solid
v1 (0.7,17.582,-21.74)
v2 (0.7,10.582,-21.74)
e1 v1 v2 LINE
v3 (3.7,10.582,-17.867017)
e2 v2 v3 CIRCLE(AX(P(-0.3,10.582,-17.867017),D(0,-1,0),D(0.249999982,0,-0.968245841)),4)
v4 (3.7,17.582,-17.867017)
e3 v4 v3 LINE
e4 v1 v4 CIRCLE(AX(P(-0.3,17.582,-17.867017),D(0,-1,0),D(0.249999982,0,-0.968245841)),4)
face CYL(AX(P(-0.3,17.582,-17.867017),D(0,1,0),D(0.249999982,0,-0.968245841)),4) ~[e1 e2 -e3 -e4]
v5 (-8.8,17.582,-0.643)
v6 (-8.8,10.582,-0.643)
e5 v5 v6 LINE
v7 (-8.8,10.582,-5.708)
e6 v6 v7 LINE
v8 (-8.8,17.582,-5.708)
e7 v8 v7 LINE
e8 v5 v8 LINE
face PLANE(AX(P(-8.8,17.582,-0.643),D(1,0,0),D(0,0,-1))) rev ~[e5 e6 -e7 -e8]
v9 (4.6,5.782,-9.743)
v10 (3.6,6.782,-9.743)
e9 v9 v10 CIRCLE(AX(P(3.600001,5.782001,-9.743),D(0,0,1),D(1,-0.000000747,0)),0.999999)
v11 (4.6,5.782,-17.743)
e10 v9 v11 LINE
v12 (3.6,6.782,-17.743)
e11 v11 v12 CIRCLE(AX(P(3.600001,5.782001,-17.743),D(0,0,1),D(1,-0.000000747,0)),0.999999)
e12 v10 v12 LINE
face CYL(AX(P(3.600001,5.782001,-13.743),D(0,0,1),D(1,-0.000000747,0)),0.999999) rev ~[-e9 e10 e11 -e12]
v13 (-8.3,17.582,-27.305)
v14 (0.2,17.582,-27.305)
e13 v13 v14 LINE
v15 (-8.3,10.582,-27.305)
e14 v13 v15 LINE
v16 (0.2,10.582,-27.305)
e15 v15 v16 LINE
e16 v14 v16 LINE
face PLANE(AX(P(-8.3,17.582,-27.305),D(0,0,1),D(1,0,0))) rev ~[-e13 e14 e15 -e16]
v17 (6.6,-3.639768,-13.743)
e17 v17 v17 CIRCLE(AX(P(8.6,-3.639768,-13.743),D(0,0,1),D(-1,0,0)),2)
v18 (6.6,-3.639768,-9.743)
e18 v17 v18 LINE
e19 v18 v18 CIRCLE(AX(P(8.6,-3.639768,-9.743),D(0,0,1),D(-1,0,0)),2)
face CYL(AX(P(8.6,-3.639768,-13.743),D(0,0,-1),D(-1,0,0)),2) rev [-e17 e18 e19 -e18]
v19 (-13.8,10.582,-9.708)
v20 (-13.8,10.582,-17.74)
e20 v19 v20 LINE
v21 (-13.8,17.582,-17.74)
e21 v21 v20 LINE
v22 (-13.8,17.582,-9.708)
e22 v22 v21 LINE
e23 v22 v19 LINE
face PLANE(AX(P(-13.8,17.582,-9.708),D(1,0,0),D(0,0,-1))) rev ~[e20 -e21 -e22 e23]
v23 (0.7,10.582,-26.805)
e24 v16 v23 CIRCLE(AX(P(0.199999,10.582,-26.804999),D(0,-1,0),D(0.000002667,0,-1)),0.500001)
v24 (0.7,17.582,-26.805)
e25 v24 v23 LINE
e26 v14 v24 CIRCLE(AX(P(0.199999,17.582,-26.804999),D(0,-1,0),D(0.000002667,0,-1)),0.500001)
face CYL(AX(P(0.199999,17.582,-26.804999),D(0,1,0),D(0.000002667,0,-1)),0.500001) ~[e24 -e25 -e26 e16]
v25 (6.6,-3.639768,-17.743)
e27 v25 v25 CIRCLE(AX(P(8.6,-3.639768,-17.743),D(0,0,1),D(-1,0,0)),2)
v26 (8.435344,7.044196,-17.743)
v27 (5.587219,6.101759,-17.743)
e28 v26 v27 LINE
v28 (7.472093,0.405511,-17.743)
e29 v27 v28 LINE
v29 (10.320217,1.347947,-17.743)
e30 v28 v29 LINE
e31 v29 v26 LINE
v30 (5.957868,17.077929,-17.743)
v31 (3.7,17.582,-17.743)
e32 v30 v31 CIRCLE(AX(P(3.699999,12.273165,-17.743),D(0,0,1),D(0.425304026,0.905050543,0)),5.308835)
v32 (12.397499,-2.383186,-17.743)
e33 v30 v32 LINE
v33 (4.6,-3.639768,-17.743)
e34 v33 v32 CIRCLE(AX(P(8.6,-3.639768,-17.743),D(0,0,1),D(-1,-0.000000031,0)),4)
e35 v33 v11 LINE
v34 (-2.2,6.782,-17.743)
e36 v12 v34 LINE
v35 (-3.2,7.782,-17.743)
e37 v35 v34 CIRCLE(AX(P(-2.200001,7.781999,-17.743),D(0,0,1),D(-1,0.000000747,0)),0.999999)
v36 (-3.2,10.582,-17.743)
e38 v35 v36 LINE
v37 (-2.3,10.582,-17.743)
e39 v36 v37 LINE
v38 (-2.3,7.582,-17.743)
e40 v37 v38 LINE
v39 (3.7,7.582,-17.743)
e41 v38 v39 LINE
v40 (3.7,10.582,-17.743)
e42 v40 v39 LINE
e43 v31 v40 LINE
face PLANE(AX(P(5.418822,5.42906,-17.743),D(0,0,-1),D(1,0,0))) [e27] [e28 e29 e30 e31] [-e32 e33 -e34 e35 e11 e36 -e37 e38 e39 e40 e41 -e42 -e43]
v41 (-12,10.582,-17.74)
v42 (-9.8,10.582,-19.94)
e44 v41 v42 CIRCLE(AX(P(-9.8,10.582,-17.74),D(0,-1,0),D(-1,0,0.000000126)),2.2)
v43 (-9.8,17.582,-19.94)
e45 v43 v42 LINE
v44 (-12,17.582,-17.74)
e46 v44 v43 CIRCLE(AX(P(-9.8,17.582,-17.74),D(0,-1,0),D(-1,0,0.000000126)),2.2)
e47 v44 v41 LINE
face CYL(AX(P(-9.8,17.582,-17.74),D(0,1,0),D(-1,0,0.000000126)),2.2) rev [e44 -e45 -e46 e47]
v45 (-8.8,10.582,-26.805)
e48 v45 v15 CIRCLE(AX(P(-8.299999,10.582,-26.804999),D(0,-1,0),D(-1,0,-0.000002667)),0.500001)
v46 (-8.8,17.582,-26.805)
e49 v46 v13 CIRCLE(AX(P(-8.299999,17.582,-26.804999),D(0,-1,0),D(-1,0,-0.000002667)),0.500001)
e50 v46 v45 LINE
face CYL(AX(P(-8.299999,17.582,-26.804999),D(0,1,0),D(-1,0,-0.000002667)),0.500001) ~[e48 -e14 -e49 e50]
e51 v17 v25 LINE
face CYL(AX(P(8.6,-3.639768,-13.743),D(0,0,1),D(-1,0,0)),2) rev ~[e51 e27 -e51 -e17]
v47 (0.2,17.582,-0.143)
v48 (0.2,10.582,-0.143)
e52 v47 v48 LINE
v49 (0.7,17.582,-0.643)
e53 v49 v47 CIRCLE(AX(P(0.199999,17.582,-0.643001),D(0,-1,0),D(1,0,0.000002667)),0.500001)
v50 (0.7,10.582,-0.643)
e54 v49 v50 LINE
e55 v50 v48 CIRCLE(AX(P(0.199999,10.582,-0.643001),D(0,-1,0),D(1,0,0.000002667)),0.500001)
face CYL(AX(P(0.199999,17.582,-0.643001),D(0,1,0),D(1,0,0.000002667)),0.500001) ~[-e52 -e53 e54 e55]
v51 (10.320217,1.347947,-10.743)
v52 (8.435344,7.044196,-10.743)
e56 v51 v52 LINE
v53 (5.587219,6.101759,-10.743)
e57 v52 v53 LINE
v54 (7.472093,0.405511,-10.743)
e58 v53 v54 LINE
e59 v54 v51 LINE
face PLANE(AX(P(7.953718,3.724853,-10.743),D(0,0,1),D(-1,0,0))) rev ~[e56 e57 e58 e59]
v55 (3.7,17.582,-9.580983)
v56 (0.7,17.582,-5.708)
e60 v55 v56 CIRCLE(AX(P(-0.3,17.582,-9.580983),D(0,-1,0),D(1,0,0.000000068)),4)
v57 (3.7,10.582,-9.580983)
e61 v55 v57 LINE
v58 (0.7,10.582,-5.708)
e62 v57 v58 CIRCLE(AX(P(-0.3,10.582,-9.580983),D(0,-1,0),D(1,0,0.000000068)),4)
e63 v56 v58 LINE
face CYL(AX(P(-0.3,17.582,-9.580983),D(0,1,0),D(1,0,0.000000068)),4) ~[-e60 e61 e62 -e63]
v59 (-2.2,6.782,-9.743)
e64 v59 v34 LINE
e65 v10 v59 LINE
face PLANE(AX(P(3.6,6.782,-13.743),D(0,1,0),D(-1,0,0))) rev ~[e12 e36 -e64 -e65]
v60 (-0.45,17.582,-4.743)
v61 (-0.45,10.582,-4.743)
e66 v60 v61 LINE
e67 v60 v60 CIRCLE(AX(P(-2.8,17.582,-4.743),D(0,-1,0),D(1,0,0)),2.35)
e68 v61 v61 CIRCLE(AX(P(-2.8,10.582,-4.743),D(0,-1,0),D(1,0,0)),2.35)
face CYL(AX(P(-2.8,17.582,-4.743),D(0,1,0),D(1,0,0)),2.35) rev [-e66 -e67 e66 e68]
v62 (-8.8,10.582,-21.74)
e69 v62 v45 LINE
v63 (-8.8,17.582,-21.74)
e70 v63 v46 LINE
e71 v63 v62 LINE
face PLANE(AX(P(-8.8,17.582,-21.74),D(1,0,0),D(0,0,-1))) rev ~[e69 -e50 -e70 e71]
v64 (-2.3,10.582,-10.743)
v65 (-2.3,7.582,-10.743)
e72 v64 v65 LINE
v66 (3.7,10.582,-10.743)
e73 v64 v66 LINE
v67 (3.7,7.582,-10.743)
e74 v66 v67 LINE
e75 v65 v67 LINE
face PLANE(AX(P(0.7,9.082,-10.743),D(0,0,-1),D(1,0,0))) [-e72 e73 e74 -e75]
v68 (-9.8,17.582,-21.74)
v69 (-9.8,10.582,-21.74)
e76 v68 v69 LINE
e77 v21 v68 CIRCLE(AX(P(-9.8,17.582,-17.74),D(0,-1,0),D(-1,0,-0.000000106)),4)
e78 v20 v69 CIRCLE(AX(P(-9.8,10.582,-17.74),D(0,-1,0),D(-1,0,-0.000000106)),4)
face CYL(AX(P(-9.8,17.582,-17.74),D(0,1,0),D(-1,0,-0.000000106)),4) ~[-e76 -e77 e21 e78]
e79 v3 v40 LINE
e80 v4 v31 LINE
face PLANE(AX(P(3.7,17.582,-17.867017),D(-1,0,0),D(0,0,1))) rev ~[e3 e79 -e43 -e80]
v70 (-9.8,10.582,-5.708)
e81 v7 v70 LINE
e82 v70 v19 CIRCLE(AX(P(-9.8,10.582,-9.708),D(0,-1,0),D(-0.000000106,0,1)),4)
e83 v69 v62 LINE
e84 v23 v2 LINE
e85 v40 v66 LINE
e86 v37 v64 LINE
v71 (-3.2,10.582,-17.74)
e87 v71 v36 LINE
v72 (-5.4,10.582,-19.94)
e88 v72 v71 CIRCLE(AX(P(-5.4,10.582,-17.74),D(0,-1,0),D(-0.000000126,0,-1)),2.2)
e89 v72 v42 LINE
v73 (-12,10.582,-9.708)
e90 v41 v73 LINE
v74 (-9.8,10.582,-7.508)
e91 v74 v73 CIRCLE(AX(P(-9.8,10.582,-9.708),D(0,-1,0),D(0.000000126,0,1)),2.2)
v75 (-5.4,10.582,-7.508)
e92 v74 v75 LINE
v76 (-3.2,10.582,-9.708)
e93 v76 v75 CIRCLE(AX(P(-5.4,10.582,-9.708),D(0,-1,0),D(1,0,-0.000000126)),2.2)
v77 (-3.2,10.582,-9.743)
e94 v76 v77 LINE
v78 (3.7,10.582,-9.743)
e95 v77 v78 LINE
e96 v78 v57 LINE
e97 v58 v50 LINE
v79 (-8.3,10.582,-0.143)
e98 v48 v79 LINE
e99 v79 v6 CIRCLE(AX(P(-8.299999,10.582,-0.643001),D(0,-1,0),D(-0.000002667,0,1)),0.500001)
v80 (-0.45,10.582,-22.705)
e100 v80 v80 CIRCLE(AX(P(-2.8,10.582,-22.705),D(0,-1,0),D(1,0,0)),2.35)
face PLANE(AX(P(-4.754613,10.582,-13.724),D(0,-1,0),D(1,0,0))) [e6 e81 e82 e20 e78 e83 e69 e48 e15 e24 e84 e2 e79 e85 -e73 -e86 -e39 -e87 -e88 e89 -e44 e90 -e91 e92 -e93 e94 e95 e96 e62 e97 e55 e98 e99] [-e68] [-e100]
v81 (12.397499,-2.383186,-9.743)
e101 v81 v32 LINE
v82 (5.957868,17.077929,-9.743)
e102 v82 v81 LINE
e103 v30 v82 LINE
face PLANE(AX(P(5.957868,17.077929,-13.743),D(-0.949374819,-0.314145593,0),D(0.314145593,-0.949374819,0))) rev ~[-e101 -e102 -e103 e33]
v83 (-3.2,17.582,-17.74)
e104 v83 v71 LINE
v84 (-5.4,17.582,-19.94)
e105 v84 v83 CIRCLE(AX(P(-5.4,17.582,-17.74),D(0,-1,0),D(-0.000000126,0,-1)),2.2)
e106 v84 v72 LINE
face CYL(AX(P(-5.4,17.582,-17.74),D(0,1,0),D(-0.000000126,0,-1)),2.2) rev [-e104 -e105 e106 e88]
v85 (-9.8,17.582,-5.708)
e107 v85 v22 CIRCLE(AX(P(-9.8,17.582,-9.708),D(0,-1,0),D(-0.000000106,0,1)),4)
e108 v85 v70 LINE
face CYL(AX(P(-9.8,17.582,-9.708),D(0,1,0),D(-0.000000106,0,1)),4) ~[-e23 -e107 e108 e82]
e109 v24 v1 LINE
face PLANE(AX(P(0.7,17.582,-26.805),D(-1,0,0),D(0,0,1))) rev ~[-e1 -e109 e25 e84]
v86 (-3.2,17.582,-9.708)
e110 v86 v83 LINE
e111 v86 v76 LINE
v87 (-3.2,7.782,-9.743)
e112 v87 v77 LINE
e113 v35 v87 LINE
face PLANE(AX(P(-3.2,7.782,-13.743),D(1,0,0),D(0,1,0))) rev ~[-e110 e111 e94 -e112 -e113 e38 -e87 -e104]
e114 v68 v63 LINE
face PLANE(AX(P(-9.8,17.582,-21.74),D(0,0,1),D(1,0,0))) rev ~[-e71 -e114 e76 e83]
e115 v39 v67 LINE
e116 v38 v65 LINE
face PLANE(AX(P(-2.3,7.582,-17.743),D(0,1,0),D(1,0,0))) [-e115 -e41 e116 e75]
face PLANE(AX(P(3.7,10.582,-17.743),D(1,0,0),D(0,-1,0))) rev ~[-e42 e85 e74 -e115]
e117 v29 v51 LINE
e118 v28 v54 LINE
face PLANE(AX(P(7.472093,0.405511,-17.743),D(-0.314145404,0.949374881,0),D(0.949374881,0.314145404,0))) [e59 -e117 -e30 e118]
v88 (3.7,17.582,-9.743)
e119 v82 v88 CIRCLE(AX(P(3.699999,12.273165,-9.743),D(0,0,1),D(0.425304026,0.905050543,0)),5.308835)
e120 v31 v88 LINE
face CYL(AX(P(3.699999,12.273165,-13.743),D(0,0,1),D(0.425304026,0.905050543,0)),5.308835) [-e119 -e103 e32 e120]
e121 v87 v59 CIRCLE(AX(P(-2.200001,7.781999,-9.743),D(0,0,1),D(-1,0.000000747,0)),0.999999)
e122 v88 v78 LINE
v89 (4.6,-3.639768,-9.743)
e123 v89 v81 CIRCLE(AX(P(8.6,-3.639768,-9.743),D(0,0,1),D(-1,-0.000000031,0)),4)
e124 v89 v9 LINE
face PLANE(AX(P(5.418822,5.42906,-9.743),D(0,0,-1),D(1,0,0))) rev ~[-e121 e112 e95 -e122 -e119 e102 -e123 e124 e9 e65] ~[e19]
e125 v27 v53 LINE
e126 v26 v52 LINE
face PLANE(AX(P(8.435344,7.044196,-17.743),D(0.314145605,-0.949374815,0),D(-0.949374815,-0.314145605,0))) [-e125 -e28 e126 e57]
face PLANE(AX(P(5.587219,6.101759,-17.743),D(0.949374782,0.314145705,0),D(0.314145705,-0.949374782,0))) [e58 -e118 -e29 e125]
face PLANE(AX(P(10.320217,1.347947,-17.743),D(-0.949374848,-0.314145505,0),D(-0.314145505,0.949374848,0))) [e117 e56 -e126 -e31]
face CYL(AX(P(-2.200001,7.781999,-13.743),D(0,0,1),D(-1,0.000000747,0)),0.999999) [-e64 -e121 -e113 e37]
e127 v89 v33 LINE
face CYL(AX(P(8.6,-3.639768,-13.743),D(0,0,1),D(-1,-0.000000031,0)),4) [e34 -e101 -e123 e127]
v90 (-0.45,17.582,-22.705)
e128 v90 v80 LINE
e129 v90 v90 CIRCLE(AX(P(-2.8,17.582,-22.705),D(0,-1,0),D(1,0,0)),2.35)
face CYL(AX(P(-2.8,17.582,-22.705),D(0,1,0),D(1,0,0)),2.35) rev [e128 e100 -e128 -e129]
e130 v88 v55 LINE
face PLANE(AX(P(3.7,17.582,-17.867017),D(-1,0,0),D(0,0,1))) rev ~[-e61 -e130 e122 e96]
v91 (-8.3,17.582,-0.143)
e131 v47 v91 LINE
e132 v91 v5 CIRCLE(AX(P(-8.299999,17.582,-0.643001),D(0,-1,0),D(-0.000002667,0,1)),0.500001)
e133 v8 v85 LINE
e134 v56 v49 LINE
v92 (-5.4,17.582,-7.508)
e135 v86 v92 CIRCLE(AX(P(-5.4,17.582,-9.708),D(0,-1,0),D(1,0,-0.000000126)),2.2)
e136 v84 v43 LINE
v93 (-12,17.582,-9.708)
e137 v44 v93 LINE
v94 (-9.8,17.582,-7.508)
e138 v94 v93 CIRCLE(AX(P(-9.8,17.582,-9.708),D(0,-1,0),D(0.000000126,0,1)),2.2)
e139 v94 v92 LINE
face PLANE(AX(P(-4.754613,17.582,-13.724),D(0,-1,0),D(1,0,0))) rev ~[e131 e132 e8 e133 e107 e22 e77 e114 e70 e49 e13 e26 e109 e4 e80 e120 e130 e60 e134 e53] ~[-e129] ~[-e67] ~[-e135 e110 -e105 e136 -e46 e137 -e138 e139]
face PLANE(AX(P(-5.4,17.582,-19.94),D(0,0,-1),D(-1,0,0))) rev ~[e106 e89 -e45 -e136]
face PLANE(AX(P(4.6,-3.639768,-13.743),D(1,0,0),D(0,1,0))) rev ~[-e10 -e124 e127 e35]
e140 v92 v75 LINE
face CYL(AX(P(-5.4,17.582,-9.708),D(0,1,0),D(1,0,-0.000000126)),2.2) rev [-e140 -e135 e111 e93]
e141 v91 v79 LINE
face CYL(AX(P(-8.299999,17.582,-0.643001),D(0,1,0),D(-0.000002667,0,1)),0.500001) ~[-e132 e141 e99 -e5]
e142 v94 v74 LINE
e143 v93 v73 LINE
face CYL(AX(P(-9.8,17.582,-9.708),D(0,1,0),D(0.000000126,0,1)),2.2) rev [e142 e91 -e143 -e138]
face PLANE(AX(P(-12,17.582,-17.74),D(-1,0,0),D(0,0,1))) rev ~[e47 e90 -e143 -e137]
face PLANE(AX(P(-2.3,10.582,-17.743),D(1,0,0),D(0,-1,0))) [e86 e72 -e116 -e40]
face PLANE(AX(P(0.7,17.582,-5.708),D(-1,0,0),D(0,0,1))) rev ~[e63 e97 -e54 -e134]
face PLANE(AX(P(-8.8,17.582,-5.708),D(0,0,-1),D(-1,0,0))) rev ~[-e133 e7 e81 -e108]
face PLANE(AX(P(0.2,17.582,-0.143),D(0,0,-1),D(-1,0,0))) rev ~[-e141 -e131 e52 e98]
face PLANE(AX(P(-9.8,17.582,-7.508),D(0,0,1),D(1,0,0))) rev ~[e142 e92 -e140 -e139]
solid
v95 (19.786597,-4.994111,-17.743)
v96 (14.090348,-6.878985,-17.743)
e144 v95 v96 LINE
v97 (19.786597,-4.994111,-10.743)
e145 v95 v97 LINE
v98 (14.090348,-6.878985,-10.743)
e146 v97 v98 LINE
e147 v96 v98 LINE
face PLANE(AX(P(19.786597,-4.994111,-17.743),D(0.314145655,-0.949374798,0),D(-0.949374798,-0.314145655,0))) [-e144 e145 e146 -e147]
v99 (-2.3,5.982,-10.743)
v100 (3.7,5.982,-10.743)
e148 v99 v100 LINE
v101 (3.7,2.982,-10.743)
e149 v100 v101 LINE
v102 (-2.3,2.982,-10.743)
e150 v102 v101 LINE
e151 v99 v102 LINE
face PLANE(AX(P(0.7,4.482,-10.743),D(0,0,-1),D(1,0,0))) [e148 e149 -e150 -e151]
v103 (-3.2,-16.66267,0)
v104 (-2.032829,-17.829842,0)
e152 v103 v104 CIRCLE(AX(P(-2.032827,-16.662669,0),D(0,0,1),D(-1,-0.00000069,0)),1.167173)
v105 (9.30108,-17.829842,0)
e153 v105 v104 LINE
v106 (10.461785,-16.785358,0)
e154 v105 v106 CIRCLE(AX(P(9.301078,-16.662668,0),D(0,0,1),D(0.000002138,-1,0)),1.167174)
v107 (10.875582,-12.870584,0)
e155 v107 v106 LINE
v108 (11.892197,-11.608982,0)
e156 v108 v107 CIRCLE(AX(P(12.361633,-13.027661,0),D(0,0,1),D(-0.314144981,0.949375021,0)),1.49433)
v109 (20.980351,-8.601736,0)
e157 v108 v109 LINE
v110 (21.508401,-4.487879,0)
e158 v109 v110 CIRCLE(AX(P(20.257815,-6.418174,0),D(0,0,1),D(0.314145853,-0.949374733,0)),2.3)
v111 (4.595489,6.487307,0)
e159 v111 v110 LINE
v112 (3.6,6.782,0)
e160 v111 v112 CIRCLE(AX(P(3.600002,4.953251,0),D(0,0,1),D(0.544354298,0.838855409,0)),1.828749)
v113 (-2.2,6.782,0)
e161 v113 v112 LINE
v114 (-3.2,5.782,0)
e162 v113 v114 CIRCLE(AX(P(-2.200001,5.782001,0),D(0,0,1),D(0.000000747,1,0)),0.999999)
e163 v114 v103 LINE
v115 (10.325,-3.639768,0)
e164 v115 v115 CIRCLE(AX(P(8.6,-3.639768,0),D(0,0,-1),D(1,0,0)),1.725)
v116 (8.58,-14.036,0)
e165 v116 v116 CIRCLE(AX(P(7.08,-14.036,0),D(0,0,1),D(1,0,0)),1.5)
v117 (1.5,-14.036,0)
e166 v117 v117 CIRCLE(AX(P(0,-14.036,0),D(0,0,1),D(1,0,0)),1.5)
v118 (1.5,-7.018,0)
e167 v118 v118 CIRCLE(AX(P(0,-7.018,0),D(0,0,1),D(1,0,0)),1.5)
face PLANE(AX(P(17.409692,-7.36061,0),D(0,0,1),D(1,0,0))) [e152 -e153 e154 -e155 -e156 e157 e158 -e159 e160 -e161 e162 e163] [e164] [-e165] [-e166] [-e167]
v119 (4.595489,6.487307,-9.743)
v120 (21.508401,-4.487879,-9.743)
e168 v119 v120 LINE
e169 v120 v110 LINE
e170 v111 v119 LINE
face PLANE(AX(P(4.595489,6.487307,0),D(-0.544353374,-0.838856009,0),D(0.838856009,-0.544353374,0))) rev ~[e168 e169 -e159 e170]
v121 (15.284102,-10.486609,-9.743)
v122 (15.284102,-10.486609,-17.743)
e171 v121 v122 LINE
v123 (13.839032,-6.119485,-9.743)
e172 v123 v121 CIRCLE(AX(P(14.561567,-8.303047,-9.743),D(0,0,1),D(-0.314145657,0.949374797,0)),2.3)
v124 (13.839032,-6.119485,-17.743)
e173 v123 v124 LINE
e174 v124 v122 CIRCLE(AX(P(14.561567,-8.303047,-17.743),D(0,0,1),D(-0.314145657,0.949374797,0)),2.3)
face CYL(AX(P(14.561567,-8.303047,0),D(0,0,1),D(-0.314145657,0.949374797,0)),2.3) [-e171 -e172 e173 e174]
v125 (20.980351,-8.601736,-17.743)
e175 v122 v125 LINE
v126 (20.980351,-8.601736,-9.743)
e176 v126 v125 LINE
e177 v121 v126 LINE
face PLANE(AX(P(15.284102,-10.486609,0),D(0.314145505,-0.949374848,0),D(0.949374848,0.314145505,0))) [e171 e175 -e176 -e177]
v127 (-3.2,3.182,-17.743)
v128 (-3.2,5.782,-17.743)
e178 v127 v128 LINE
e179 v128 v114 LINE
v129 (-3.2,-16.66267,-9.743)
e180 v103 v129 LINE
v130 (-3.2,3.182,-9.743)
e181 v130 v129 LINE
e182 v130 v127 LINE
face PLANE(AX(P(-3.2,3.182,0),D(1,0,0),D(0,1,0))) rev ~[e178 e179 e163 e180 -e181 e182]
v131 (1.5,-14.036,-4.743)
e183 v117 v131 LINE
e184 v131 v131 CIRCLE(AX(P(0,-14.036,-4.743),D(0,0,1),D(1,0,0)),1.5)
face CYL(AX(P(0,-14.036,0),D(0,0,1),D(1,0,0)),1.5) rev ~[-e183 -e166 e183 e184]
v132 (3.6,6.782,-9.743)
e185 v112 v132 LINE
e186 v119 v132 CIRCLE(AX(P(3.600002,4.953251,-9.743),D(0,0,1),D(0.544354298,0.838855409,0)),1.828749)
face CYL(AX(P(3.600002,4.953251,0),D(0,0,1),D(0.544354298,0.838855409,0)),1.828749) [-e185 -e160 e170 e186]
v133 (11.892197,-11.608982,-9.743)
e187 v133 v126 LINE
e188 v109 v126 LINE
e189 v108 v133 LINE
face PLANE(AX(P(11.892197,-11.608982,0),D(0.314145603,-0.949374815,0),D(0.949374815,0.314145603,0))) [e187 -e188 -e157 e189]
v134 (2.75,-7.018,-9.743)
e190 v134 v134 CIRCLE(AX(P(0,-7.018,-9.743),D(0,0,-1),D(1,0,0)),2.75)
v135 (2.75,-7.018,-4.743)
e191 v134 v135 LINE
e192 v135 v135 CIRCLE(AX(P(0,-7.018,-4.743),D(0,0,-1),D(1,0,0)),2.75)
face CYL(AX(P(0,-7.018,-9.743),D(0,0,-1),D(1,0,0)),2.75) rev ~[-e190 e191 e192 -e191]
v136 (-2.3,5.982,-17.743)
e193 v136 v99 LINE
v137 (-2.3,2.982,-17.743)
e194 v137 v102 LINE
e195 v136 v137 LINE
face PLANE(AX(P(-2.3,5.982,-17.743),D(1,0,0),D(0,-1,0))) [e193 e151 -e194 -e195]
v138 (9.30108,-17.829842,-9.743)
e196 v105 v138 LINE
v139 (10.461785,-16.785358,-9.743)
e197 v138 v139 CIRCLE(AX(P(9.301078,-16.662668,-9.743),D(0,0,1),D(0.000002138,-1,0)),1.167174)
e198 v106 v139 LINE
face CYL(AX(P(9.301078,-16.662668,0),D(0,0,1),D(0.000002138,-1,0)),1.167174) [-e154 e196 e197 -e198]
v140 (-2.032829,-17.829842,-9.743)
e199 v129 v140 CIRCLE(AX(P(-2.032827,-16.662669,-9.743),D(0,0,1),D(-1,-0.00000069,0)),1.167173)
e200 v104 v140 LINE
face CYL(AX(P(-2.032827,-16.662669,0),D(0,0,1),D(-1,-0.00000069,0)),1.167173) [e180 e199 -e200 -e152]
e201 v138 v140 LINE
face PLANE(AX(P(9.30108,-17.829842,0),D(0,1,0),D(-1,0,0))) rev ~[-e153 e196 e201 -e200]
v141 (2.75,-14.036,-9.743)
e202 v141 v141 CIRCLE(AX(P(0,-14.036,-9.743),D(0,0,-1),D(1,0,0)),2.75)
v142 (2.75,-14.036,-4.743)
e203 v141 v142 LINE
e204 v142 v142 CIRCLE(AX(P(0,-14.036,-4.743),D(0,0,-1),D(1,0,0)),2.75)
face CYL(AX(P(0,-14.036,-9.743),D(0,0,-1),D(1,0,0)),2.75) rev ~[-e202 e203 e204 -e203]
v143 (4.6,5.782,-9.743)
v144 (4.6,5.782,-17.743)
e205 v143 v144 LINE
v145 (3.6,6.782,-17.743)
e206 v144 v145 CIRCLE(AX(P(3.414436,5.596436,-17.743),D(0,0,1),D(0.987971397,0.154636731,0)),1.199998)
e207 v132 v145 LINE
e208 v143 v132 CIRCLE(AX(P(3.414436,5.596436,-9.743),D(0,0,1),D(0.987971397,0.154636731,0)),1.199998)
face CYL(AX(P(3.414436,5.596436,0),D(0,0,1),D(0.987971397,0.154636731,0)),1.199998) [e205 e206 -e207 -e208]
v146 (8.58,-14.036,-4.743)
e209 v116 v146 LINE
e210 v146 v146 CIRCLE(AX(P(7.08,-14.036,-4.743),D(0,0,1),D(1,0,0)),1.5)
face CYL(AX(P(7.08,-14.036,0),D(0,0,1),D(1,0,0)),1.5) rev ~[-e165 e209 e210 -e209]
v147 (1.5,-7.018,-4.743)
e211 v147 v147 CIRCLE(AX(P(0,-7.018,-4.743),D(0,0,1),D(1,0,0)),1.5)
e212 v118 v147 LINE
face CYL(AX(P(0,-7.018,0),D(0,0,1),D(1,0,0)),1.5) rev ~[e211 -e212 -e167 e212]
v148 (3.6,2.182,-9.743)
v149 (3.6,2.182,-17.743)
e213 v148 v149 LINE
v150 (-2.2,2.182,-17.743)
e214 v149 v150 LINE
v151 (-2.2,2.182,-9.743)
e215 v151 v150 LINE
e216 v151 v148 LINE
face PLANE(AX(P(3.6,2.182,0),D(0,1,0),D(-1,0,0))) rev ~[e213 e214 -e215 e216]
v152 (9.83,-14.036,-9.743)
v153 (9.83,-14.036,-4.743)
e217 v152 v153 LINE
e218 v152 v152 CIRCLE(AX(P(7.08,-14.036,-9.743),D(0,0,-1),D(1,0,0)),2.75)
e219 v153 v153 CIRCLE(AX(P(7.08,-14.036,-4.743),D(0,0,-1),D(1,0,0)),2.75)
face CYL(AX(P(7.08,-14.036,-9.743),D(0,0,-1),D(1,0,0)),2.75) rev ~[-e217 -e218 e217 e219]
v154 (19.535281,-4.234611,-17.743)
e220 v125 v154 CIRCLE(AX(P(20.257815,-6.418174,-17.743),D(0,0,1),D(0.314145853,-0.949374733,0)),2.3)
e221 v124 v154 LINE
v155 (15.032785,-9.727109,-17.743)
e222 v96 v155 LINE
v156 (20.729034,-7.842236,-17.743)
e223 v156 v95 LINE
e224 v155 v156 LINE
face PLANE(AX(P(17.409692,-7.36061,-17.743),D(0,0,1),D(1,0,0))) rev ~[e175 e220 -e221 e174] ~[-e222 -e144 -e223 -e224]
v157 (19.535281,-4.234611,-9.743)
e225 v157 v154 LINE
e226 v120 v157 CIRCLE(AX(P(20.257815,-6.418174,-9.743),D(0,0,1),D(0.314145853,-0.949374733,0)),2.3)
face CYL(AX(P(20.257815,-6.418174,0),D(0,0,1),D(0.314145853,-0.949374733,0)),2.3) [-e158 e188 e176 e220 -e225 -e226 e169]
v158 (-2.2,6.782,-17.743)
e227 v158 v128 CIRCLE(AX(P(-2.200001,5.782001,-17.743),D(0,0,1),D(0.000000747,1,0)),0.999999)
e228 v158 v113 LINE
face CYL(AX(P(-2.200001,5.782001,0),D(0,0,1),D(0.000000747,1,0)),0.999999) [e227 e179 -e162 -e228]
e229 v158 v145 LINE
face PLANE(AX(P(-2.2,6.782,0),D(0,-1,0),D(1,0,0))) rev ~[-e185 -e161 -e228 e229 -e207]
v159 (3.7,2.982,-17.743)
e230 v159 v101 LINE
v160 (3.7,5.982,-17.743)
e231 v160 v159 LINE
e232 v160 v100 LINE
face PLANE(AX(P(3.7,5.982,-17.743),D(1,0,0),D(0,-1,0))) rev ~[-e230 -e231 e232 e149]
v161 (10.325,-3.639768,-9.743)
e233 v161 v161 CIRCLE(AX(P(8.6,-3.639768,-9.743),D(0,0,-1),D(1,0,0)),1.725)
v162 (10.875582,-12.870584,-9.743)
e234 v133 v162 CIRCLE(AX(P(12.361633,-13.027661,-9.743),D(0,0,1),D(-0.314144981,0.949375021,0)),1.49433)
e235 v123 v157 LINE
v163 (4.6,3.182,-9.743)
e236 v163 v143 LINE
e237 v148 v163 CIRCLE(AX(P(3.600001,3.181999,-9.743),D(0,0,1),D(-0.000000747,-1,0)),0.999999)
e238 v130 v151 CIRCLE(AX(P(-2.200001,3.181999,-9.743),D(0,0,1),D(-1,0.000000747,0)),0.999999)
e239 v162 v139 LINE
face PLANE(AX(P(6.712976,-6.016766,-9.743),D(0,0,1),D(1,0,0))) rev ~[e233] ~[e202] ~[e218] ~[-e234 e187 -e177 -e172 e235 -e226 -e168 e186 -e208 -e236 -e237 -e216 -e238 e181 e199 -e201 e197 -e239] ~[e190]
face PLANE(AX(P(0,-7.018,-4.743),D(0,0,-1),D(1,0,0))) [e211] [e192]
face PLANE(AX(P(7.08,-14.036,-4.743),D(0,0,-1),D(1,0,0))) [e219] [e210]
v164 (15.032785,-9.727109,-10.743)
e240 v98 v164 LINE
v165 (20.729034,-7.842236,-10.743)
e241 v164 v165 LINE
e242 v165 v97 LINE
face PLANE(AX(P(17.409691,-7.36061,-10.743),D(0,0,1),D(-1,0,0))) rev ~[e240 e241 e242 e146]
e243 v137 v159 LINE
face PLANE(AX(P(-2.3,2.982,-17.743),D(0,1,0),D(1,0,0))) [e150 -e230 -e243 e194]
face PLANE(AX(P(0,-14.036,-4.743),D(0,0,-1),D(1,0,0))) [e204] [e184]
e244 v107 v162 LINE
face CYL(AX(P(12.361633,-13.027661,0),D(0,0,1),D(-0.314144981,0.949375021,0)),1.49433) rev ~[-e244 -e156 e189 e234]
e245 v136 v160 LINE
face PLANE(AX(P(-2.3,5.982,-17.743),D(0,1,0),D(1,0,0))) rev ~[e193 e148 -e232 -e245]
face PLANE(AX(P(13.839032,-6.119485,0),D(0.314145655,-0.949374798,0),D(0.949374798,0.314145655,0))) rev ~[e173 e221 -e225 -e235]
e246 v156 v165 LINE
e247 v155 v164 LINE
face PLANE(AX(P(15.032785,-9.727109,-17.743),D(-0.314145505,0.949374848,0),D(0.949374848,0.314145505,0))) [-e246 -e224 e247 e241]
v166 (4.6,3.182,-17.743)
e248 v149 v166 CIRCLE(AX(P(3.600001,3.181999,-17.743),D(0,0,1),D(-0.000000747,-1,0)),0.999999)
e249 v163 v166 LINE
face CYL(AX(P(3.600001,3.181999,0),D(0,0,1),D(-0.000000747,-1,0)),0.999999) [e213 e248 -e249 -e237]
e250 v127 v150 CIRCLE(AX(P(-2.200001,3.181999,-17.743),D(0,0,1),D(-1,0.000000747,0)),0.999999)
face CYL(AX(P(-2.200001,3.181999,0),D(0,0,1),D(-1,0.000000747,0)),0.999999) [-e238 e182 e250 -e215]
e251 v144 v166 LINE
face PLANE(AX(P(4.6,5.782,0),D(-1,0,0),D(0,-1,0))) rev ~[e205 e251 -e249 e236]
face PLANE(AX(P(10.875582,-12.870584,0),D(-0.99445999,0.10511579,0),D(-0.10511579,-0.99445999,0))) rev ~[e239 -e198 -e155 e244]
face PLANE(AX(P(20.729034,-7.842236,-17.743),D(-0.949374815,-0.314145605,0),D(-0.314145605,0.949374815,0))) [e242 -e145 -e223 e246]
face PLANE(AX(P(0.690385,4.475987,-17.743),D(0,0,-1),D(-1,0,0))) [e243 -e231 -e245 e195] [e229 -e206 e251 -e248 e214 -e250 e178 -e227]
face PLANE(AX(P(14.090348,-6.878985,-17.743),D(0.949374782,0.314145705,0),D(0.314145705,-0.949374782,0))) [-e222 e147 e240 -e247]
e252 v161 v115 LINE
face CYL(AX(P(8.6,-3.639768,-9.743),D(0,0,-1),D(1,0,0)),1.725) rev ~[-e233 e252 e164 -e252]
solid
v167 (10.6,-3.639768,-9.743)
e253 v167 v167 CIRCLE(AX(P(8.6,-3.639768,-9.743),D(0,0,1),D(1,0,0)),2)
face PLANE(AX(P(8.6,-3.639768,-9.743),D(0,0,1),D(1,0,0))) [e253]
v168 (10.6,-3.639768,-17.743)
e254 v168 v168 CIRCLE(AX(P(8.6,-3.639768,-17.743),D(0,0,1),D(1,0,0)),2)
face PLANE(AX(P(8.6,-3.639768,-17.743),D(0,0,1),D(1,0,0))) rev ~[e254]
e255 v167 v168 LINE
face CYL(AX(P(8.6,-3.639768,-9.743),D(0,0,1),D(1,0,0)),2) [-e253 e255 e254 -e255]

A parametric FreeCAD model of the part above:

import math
import FreeCAD as App
import Part
import Sketcher


def add_polygon(sketch, points):
    """Adds a closed chain of lines whose ends are joined by coincident constraints."""
    first, n = sketch.GeometryCount, len(points)
    for a, b in zip(points, points[1:] + points[:1]):
        sketch.addGeometry(Part.LineSegment(App.Vector(*a, 0), App.Vector(*b, 0)), False)
    for i in range(n):
        sketch.addConstraint(Sketcher.Constraint("Coincident", first + i, 2, first + (i + 1) % n, 1))

doc = App.newDocument("Part")
body = doc.addObject("PartDesign::Body", "Body")

# Sketch on XZ plane
sketch1 = body.newObject("Sketcher::SketchObject", "Sketch")
sketch1.AttachmentSupport = (doc.getObject("XZ_Plane"), [""])
sketch1.MapMode = "FlatFace"
sketch1.AttachmentOffset = App.Placement(App.Vector(0, 0, -17.582), App.Rotation())
sketch1.addGeometry([
    Part.LineSegment(App.Vector(-13.8, -9.7, 0), App.Vector(-13.8, -17.7, 0)),  # 0
    Part.ArcOfCircle(Part.Circle(App.Vector(-9.8, -17.7, 0), App.Vector(0, 0, 1), 4), math.radians(-180), math.radians(-90)),  # 1
    Part.LineSegment(App.Vector(-9.8, -21.7, 0), App.Vector(-8.8, -21.7, 0)),  # 2
    Part.LineSegment(App.Vector(-8.8, -21.7, 0), App.Vector(-8.8, -26.8, 0)),  # 3
    Part.ArcOfCircle(Part.Circle(App.Vector(-8.3, -26.8, 0), App.Vector(0, 0, 1), 0.5), math.radians(-180), math.radians(-90)),  # 4
    Part.LineSegment(App.Vector(-8.3, -27.3, 0), App.Vector(0.2, -27.3, 0)),  # 5
    Part.ArcOfCircle(Part.Circle(App.Vector(0.2, -26.8, 0), App.Vector(0, 0, 1), 0.5), math.radians(-90), math.radians(0)),  # 6
    Part.LineSegment(App.Vector(0.7, -26.8, 0), App.Vector(0.7, -21.7, 0)),  # 7
    Part.ArcOfCircle(Part.Circle(App.Vector(-0.3, -17.9, 0), App.Vector(0, 0, 1), 4), math.radians(-76), math.radians(0)),  # 8
    Part.LineSegment(App.Vector(3.7, -17.9, 0), App.Vector(3.7, -9.6, 0)),  # 9
    Part.ArcOfCircle(Part.Circle(App.Vector(-0.3, -9.6, 0), App.Vector(0, 0, 1), 4), math.radians(0), math.radians(76)),  # 10
    Part.LineSegment(App.Vector(0.7, -5.7, 0), App.Vector(0.7, -0.6, 0)),  # 11
    Part.ArcOfCircle(Part.Circle(App.Vector(0.2, -0.6, 0), App.Vector(0, 0, 1), 0.5), math.radians(0), math.radians(90)),  # 12
    Part.LineSegment(App.Vector(0.2, -0.1, 0), App.Vector(-8.3, -0.1, 0)),  # 13
    Part.ArcOfCircle(Part.Circle(App.Vector(-8.3, -0.6, 0), App.Vector(0, 0, 1), 0.5), math.radians(90), math.radians(180)),  # 14
    Part.LineSegment(App.Vector(-8.8, -0.6, 0), App.Vector(-8.8, -5.7, 0)),  # 15
    Part.LineSegment(App.Vector(-8.8, -5.7, 0), App.Vector(-9.8, -5.7, 0)),  # 16
    Part.ArcOfCircle(Part.Circle(App.Vector(-9.8, -9.7, 0), App.Vector(0, 0, 1), 4), math.radians(90), math.radians(180)),  # 17
    Part.ArcOfCircle(Part.Circle(App.Vector(-9.8, -9.7, 0), App.Vector(0, 0, 1), 2.2), math.radians(90), math.radians(180)),  # 18
    Part.LineSegment(App.Vector(-9.8, -7.5, 0), App.Vector(-5.4, -7.5, 0)),  # 19
    Part.ArcOfCircle(Part.Circle(App.Vector(-5.4, -9.7, 0), App.Vector(0, 0, 1), 2.2), math.radians(0), math.radians(90)),  # 20
    Part.LineSegment(App.Vector(-3.2, -9.7, 0), App.Vector(-3.2, -17.7, 0)),  # 21
    Part.ArcOfCircle(Part.Circle(App.Vector(-5.4, -17.7, 0), App.Vector(0, 0, 1), 2.2), math.radians(-90), math.radians(0)),  # 22
    Part.LineSegment(App.Vector(-5.4, -19.9, 0), App.Vector(-9.8, -19.9, 0)),  # 23
    Part.ArcOfCircle(Part.Circle(App.Vector(-9.8, -17.7, 0), App.Vector(0, 0, 1), 2.2), math.radians(180), math.radians(270)),  # 24
    Part.LineSegment(App.Vector(-12, -17.7, 0), App.Vector(-12, -9.7, 0)),  # 25
    Part.Circle(App.Vector(-2.8, -22.7, 0), App.Vector(0, 0, 1), 2.4),  # 26
    Part.Circle(App.Vector(-2.8, -4.7, 0), App.Vector(0, 0, 1), 2.4),  # 27
], False)
sketch1.addConstraint([
    Sketcher.Constraint("Tangent", 0, 2, 1, 1),
    Sketcher.Constraint("Tangent", 1, 2, 2, 1),
    Sketcher.Constraint("Coincident", 2, 2, 3, 1),
    Sketcher.Constraint("Coincident", 3, 2, 4, 1),
    Sketcher.Constraint("Coincident", 4, 2, 5, 1),
    Sketcher.Constraint("Coincident", 5, 2, 6, 1),
    Sketcher.Constraint("Coincident", 6, 2, 7, 1),
    Sketcher.Constraint("Coincident", 7, 2, 8, 1),
    Sketcher.Constraint("Tangent", 8, 2, 9, 1),
    Sketcher.Constraint("Tangent", 9, 2, 10, 1),
    Sketcher.Constraint("Coincident", 10, 2, 11, 1),
    Sketcher.Constraint("Coincident", 11, 2, 12, 1),
    Sketcher.Constraint("Coincident", 12, 2, 13, 1),
    Sketcher.Constraint("Coincident", 13, 2, 14, 1),
    Sketcher.Constraint("Coincident", 14, 2, 15, 1),
    Sketcher.Constraint("Coincident", 15, 2, 16, 1),
    Sketcher.Constraint("Tangent", 16, 2, 17, 1),
    Sketcher.Constraint("Tangent", 17, 2, 0, 1),
    Sketcher.Constraint("Tangent", 18, 1, 19, 1),
    Sketcher.Constraint("Tangent", 19, 2, 20, 2),
    Sketcher.Constraint("Tangent", 20, 1, 21, 1),
    Sketcher.Constraint("Tangent", 21, 2, 22, 2),
    Sketcher.Constraint("Tangent", 22, 1, 23, 1),
    Sketcher.Constraint("Tangent", 23, 2, 24, 2),
    Sketcher.Constraint("Tangent", 24, 1, 25, 1),
    Sketcher.Constraint("Tangent", 25, 2, 18, 2),
    Sketcher.Constraint("Vertical", 0),
    Sketcher.Constraint("Horizontal", 2),
    Sketcher.Constraint("Vertical", 3),
    Sketcher.Constraint("Horizontal", 5),
    Sketcher.Constraint("Vertical", 7),
    Sketcher.Constraint("Vertical", 9),
    Sketcher.Constraint("Vertical", 11),
    Sketcher.Constraint("Horizontal", 13),
    Sketcher.Constraint("Vertical", 15),
    Sketcher.Constraint("Horizontal", 16),
    Sketcher.Constraint("Horizontal", 19),
    Sketcher.Constraint("Vertical", 21),
    Sketcher.Constraint("Horizontal", 23),
    Sketcher.Constraint("Vertical", 25),
    Sketcher.Constraint("Coincident", 18, 3, 17, 3),
    Sketcher.Constraint("Coincident", 24, 3, 1, 3),
    Sketcher.Constraint("Equal", 4, 6),
    Sketcher.Constraint("Equal", 1, 8),
    Sketcher.Constraint("Equal", 8, 10),
    Sketcher.Constraint("Equal", 6, 12),
    Sketcher.Constraint("Equal", 12, 14),
    Sketcher.Constraint("Equal", 10, 17),
    Sketcher.Constraint("Equal", 18, 20),
    Sketcher.Constraint("Equal", 20, 22),
    Sketcher.Constraint("Equal", 26, 27),
    Sketcher.Constraint("Horizontal", 6, 3, 3, 2),
    Sketcher.Constraint("Horizontal", 3, 2, 6, 2),
    Sketcher.Constraint("Horizontal", 2, 2, 7, 2),
    Sketcher.Constraint("Horizontal", 14, 3, 11, 2),
    Sketcher.Constraint("Horizontal", 11, 2, 14, 2),
    Sketcher.Constraint("Horizontal", 10, 2, 15, 2),
    Sketcher.Constraint("Vertical", 6, 3, 12, 3),
    Sketcher.Constraint("Vertical", 4, 3, 14, 3),
    Sketcher.Constraint("Vertical", 26, 3, 27, 3),
    Sketcher.Constraint("Vertical", 14, 3, 4, 2),
    Sketcher.Constraint("Vertical", 12, 3, 5, 2),
    Sketcher.Constraint("Vertical", 5, 2, 12, 2),
    Sketcher.Constraint("Vertical", 4, 2, 13, 2),
    Sketcher.Constraint("Equal", 7, 11),
    Sketcher.Constraint("Radius", 1, 4.0),
    Sketcher.Constraint("Diameter", 26, 4.7),
    Sketcher.Constraint("Radius", 4, 0.500001),
    Sketcher.Constraint("Radius", 18, 2.2),
    Sketcher.Constraint("DistanceX", 2, 1, 2, 2, 1.0),
    Sketcher.Constraint("DistanceX", 5, 1, 5, 2, 8.5),
    Sketcher.Constraint("DistanceX", 19, 1, 19, 2, 4.4),
    Sketcher.Constraint("DistanceX", 24, 1, -1, 1, 12.0),
    Sketcher.Constraint("DistanceX", 4, 3, 8, 3, 7.999999),
    Sketcher.Constraint("DistanceX", 26, 3, 6, 3, 2.999999),
    Sketcher.Constraint("DistanceY", 6, 3, 26, 3, 4.099999),
    Sketcher.Constraint("DistanceY", 27, 3, 12, 3, 4.099999),
    Sketcher.Constraint("DistanceY", 0, 2, 0, 1, 8.032),
    Sketcher.Constraint("DistanceY", 3, 2, 3, 1, 5.065),
    Sketcher.Constraint("DistanceY", 1, 3, -1, 1, 17.74),
])
pad1 = body.newObject("PartDesign::Pad", "Pad")
pad1.Profile = sketch1
pad1.Length = 7

# Sketch on XY plane
sketch2 = body.newObject("Sketcher::SketchObject", "Sketch001")
sketch2.AttachmentSupport = (doc.getObject("XY_Plane"), [""])
sketch2.MapMode = "FlatFace"
sketch2.AttachmentOffset = App.Placement(App.Vector(0, 0, -13.743), App.Rotation())
sketch2.addGeometry([
    Part.LineSegment(App.Vector(12.397499, -2.383186, 0), App.Vector(5.957868, 17.077929, 0)),  # 0
    Part.ArcOfCircle(Part.Circle(App.Vector(3.699999, 12.273165, 0), App.Vector(0, 0, 1), 5.308835), math.radians(64.830091), math.radians(89.99999)),  # 1
    Part.LineSegment(App.Vector(3.7, 17.582, 0), App.Vector(3.7, 10.582, 0)),  # 2
    Part.LineSegment(App.Vector(3.7, 10.582, 0), App.Vector(-3.2, 10.582, 0)),  # 3
    Part.LineSegment(App.Vector(-3.2, 10.582, 0), App.Vector(-3.2, 7.782, 0)),  # 4
    Part.ArcOfCircle(Part.Circle(App.Vector(-2.200001, 7.781999, 0), App.Vector(0, 0, 1), 0.999999), math.radians(179.999957), math.radians(270.000043)),  # 5
    Part.LineSegment(App.Vector(-2.2, 6.782, 0), App.Vector(3.6, 6.782, 0)),  # 6
    Part.ArcOfCircle(Part.Circle(App.Vector(3.600001, 5.782001, 0), App.Vector(0, 0, 1), 0.999999), math.radians(-0.000043), math.radians(90.000043)),  # 7
    Part.LineSegment(App.Vector(4.6, 5.782, 0), App.Vector(4.6, -3.639768, 0)),  # 8
    Part.ArcOfCircle(Part.Circle(App.Vector(8.6, -3.639768, 0), App.Vector(0, 0, 1), 4), math.radians(-179.999998), math.radians(18.309235)),  # 9
    Part.Circle(App.Vector(8.6, -3.639768, 0), App.Vector(0, 0, 1), 2),  # 10
], False)
sketch2.addConstraint([
    Sketcher.Constraint("Coincident", 0, 2, 1, 1),
    Sketcher.Constraint("Coincident", 1, 2, 2, 1),
    Sketcher.Constraint("Coincident", 2, 2, 3, 1),
    Sketcher.Constraint("Coincident", 3, 2, 4, 1),
    Sketcher.Constraint("Coincident", 4, 2, 5, 1),
    Sketcher.Constraint("Coincident", 5, 2, 6, 1),
    Sketcher.Constraint("Coincident", 6, 2, 7, 2),
    Sketcher.Constraint("Coincident", 7, 1, 8, 1),
    Sketcher.Constraint("Coincident", 8, 2, 9, 1),
    Sketcher.Constraint("Coincident", 9, 2, 0, 1),
    Sketcher.Constraint("Vertical", 2),
    Sketcher.Constraint("Horizontal", 3),
    Sketcher.Constraint("Vertical", 4),
    Sketcher.Constraint("Horizontal", 6),
    Sketcher.Constraint("Vertical", 8),
    Sketcher.Constraint("Coincident", 10, 3, 9, 3),
    Sketcher.Constraint("Diameter", 10, 4.0),
    Sketcher.Constraint("Radius", 5, 0.999999),
    Sketcher.Constraint("Radius", 7, 0.999999),
    Sketcher.Constraint("Radius", 9, 4.0),
    Sketcher.Constraint("DistanceY", 2, 2, 2, 1, 7.0),
    Sketcher.Constraint("DistanceX", 3, 2, 3, 1, 6.9),
    Sketcher.Constraint("DistanceX", 6, 1, 6, 2, 5.8),
    Sketcher.Constraint("DistanceY", 4, 2, 4, 1, 2.8),
    Sketcher.Constraint("DistanceY", 7, 3, 4, 2, 1.999999),
    Sketcher.Constraint("DistanceX", 4, 2, 5, 2, 1.0),
    Sketcher.Constraint("DistanceX", 6, 2, 7, 1, 1.0),
    Sketcher.Constraint("DistanceY", 7, 1, 6, 2, 1.0),
    Sketcher.Constraint("DistanceX", -1, 1, 1, 3, 3.699999),
    Sketcher.Constraint("DistanceX", 5, 3, -1, 1, 2.200001),
    Sketcher.Constraint("DistanceY", -1, 1, 5, 3, 7.781999),
    Sketcher.Constraint("Radius", 1, 5.308835),
    Sketcher.Constraint("DistanceX", -1, 1, 9, 2, 12.397499),
    Sketcher.Constraint("DistanceY", 8, 2, 8, 1, 9.421768),
    Sketcher.Constraint("DistanceY", 10, 3, -1, 1, 3.639768),
    Sketcher.Constraint("DistanceX", -1, 1, 0, 2, 5.957868),
])
pad2 = body.newObject("PartDesign::Pad", "Pad001")
pad2.Profile = sketch2
pad2.Type = "TwoLengths"
pad2.Length = 4
pad2.Length2 = 4

# Sketch on XY plane
sketch3 = body.newObject("Sketcher::SketchObject", "Sketch002")
sketch3.AttachmentSupport = (doc.getObject("XY_Plane"), [""])
sketch3.MapMode = "FlatFace"
sketch3.AttachmentOffset = App.Placement(App.Vector(0, 0, -17.743), App.Rotation())
add_polygon(sketch3, [(-2.3, 7.6), (-2.3, 10.6), (3.7, 10.6), (3.7, 7.6)])  # lines 0-3
add_polygon(sketch3, [(10.3, 1.3), (7.5, 0.4), (5.6, 6.1), (8.4, 7)])  # lines 4-7
sketch3.addConstraint([
    Sketcher.Constraint("Vertical", 0),
    Sketcher.Constraint("Horizontal", 1),
    Sketcher.Constraint("Vertical", 2),
    Sketcher.Constraint("Horizontal", 3),
    Sketcher.Constraint("Perpendicular", 4, 5),
    Sketcher.Constraint("Perpendicular", 5, 6),
    Sketcher.Constraint("Perpendicular", 6, 7),
    Sketcher.Constraint("DistanceX", 1, 1, 1, 2, 6.0),
    Sketcher.Constraint("DistanceY", 0, 1, 0, 2, 3.0),
    Sketcher.Constraint("Distance", 4, 2.999999),
    Sketcher.Constraint("Distance", 5, 5.999999),
    Sketcher.Constraint("DistanceX", 0, 2, -1, 1, 2.3),
    Sketcher.Constraint("DistanceY", -1, 1, 0, 2, 10.582),
    Sketcher.Constraint("DistanceY", -1, 1, 4, 2, 0.405511),
    Sketcher.Constraint("DistanceX", -1, 1, 5, 2, 5.587219),
    Sketcher.Constraint("DistanceY", -1, 1, 5, 2, 6.101759),
])
pocket1 = body.newObject("PartDesign::Pocket", "Pocket")
pocket1.Profile = sketch3
pocket1.Length = 7
pocket1.Reversed = True
body2 = doc.addObject("PartDesign::Body", "Body001")

# Sketch on XY plane
sketch4 = body2.newObject("Sketcher::SketchObject", "Sketch003")
sketch4.AttachmentSupport = (doc.getObject("XY_Plane001"), [""])
sketch4.MapMode = "FlatFace"
sketch4.addGeometry([
    Part.LineSegment(App.Vector(3.6, 6.8, 0), App.Vector(-2.2, 6.8, 0)),  # 0
    Part.ArcOfCircle(Part.Circle(App.Vector(-2.2, 5.8, 0), App.Vector(0, 0, 1), 1), math.radians(90), math.radians(180)),  # 1
    Part.LineSegment(App.Vector(-3.2, 5.8, 0), App.Vector(-3.2, 3.2, 0)),  # 2
    Part.ArcOfCircle(Part.Circle(App.Vector(-2.2, 3.2, 0), App.Vector(0, 0, 1), 1), math.radians(180), math.radians(270)),  # 3
    Part.LineSegment(App.Vector(-2.2, 2.2, 0), App.Vector(3.6, 2.2, 0)),  # 4
    Part.ArcOfCircle(Part.Circle(App.Vector(3.6, 3.2, 0), App.Vector(0, 0, 1), 1), math.radians(-90), math.radians(0)),  # 5
    Part.LineSegment(App.Vector(4.6, 3.2, 0), App.Vector(4.6, 5.8, 0)),  # 6
    Part.ArcOfCircle(Part.Circle(App.Vector(3.4, 5.6, 0), App.Vector(0, 0, 1), 1.2), math.radians(9), math.radians(81)),  # 7
], False)
sketch4.addConstraint([
    Sketcher.Constraint("Tangent", 0, 2, 1, 1),
    Sketcher.Constraint("Tangent", 1, 2, 2, 1),
    Sketcher.Constraint("Tangent", 2, 2, 3, 1),
    Sketcher.Constraint("Tangent", 3, 2, 4, 1),
    Sketcher.Constraint("Tangent", 4, 2, 5, 1),
    Sketcher.Constraint("Tangent", 5, 2, 6, 1),
    Sketcher.Constraint("Coincident", 6, 2, 7, 1),
    Sketcher.Constraint("Coincident", 7, 2, 0, 1),
    Sketcher.Constraint("Horizontal", 0),
    Sketcher.Constraint("Vertical", 2),
    Sketcher.Constraint("Horizontal", 4),
    Sketcher.Constraint("Vertical", 6),
    Sketcher.Constraint("Equal", 1, 3),
    Sketcher.Constraint("Equal", 3, 5),
    Sketcher.Constraint("Horizontal", 1, 2, 6, 2),
    Sketcher.Constraint("Vertical", 4, 2, 7, 2),
    Sketcher.Constraint("Radius", 1, 0.999999),
    Sketcher.Constraint("Radius", 7, 1.199998),
    Sketcher.Constraint("DistanceX", 0, 2, 0, 1, 5.8),
    Sketcher.Constraint("DistanceY", 2, 2, 2, 1, 2.6),
    Sketcher.Constraint("DistanceX", 1, 3, -1, 1, 2.200001),
    Sketcher.Constraint("DistanceY", -1, 1, 1, 3, 5.782001),
])
pad3 = body2.newObject("PartDesign::Pad", "Pad002")
pad3.Profile = sketch4
pad3.Length = 17.743
pad3.Reversed = True

# Sketch on XY plane
sketch5 = body2.newObject("Sketcher::SketchObject", "Sketch004")
sketch5.AttachmentSupport = (doc.getObject("XY_Plane001"), [""])
sketch5.MapMode = "FlatFace"
sketch5.addGeometry([
    Part.LineSegment(App.Vector(-3.2, 5.782, 0), App.Vector(-3.2, -16.66267, 0)),  # 0
    Part.ArcOfCircle(Part.Circle(App.Vector(-2.032827, -16.662669, 0), App.Vector(0, 0, 1), 1.167173), math.radians(-179.99996), math.radians(-90.000089)),  # 1
    Part.LineSegment(App.Vector(-2.032829, -17.829842, 0), App.Vector(9.30108, -17.829842, 0)),  # 2
    Part.ArcOfCircle(Part.Circle(App.Vector(9.301078, -16.662668, 0), App.Vector(0, 0, 1), 1.167174), math.radians(-89.999878), math.radians(-6.033907)),  # 3
    Part.LineSegment(App.Vector(10.461785, -16.785358, 0), App.Vector(10.875582, -12.870584, 0)),  # 4
    Part.ArcOfCircle(Part.Circle(App.Vector(12.361633, -13.027661, 0), App.Vector(0, 0, 1), 1.49433), math.radians(108.309205), math.radians(173.966174)),  # 5
    Part.LineSegment(App.Vector(11.892197, -11.608982, 0), App.Vector(20.980351, -8.601736, 0)),  # 6
    Part.ArcOfCircle(Part.Circle(App.Vector(20.257816, -6.418174, 0), App.Vector(0, 0, 1), 2.3), math.radians(-71.690751), math.radians(57.019531)),  # 7
    Part.LineSegment(App.Vector(21.509828, -4.488805, 0), App.Vector(4.595489, 6.487307, 0)),  # 8
    Part.ArcOfCircle(Part.Circle(App.Vector(3.600002, 4.953251, 0), App.Vector(0, 0, 1), 1.828749), math.radians(57.01945), math.radians(90.000052)),  # 9
    Part.LineSegment(App.Vector(3.6, 6.782, 0), App.Vector(-2.2, 6.782, 0)),  # 10
    Part.ArcOfCircle(Part.Circle(App.Vector(-2.200001, 5.782001, 0), App.Vector(0, 0, 1), 0.999999), math.radians(89.999957), math.radians(180.000043)),  # 11
], False)
sketch5.addConstraint([
    Sketcher.Constraint("Coincident", 0, 2, 1, 1),
    Sketcher.Constraint("Coincident", 1, 2, 2, 1),
    Sketcher.Constraint("Coincident", 2, 2, 3, 1),
    Sketcher.Constraint("Coincident", 3, 2, 4, 1),
    Sketcher.Constraint("Coincident", 4, 2, 5, 2),
    Sketcher.Constraint("Coincident", 5, 1, 6, 1),
    Sketcher.Constraint("Coincident", 6, 2, 7, 1),
    Sketcher.Constraint("Coincident", 7, 2, 8, 1),
    Sketcher.Constraint("Coincident", 8, 2, 9, 1),
    Sketcher.Constraint("Coincident", 9, 2, 10, 1),
    Sketcher.Constraint("Coincident", 10, 2, 11, 1),
    Sketcher.Constraint("Coincident", 11, 2, 0, 1),
    Sketcher.Constraint("Vertical", 0),
    Sketcher.Constraint("Horizontal", 2),
    Sketcher.Constraint("Horizontal", 10),
    Sketcher.Constraint("Radius", 11, 0.999999),
    Sketcher.Constraint("Radius", 7, 2.3),
    Sketcher.Constraint("DistanceX", 10, 2, 10, 1, 5.8),
    Sketcher.Constraint("DistanceX", 11, 2, 10, 2, 1.0),
    Sketcher.Constraint("DistanceY", 11, 2, 10, 2, 1.0),
    Sketcher.Constraint("DistanceX", -1, 1, 9, 3, 3.600002),
    Sketcher.Constraint("DistanceX", 11, 3, -1, 1, 2.200001),
    Sketcher.Constraint("Radius", 5, 1.49433),
    Sketcher.Constraint("Radius", 9, 1.828749),
    Sketcher.Constraint("DistanceY", -1, 1, 11, 3, 5.782001),
    Sketcher.Constraint("Radius", 1, 1.167173),
    Sketcher.Constraint("Radius", 3, 1.167174),
    Sketcher.Constraint("DistanceX", 2, 1, 2, 2, 11.333909),
    Sketcher.Constraint("DistanceY", 0, 2, 0, 1, 22.44467),
    Sketcher.Constraint("DistanceX", 2, 2, 4, 2, 1.574502),
    Sketcher.Constraint("DistanceY", 4, 2, 5, 1, 1.261602),
    Sketcher.Constraint("Distance", 8, 20.163579),
    Sketcher.Constraint("DistanceY", 1, 3, -1, 1, 16.662669),
    Sketcher.Constraint("DistanceY", 5, 3, -1, 1, 13.027661),
    Sketcher.Constraint("DistanceX", 1, 2, -1, 1, 2.032829),
    Sketcher.Constraint("DistanceY", 3, 2, -1, 1, 16.785358),
    Sketcher.Constraint("DistanceX", -1, 1, 6, 2, 20.980351),
    Sketcher.Constraint("DistanceX", -1, 1, 7, 2, 21.509828),
    Sketcher.Constraint("DistanceX", -1, 1, 8, 2, 4.595489),
    Sketcher.Constraint("DistanceX", 1, 3, 5, 3, 14.39446),
    Sketcher.Constraint("DistanceX", 3, 3, 7, 3, 10.956738),
    Sketcher.Constraint("DistanceX", 11, 3, 3, 3, 11.501078),
])
pad4 = body2.newObject("PartDesign::Pad", "Pad003")
pad4.Profile = sketch5
pad4.Length = 9.743
pad4.Reversed = True

# Sketch on XY plane
sketch6 = body2.newObject("Sketcher::SketchObject", "Sketch005")
sketch6.AttachmentSupport = (doc.getObject("XY_Plane001"), [""])
sketch6.MapMode = "FlatFace"
sketch6.addGeometry([
    Part.ArcOfCircle(Part.Circle(App.Vector(14.6, -8.3, 0), App.Vector(0, 0, 1), 2.3), math.radians(108), math.radians(288)),
    Part.LineSegment(App.Vector(15.3, -10.5, 0), App.Vector(21, -8.6, 0)),
    Part.ArcOfCircle(Part.Circle(App.Vector(20.3, -6.4, 0), App.Vector(0, 0, 1), 2.3), math.radians(-72), math.radians(108)),
    Part.LineSegment(App.Vector(19.5, -4.2, 0), App.Vector(13.8, -6.1, 0)),
], False)
sketch6.addConstraint([
    Sketcher.Constraint("Tangent", 0, 2, 1, 1),
    Sketcher.Constraint("Tangent", 1, 2, 2, 1),
    Sketcher.Constraint("Tangent", 2, 2, 3, 1),
    Sketcher.Constraint("Tangent", 3, 2, 0, 1),
    Sketcher.Constraint("Equal", 0, 2),
    Sketcher.Constraint("Radius", 0, 2.3),
    Sketcher.Constraint("Distance", 1, 6.0),
    Sketcher.Constraint("DistanceY", 0, 2, 2, 2, 6.251998),
    Sketcher.Constraint("DistanceY", 0, 2, -1, 1, 10.486609),
    Sketcher.Constraint("DistanceX", -1, 1, 1, 2, 20.980351),
])
pad5 = body2.newObject("PartDesign::Pad", "Pad004")
pad5.Profile = sketch6
pad5.Length = 17.743
pad5.Reversed = True

# Sketch on XY plane
sketch7 = body2.newObject("Sketcher::SketchObject", "Sketch006")
sketch7.AttachmentSupport = (doc.getObject("XY_Plane001"), [""])
sketch7.MapMode = "FlatFace"
sketch7.AttachmentOffset = App.Placement(App.Vector(0, 0, -17.743), App.Rotation())
add_polygon(sketch7, [(-2.3, 3), (-2.3, 6), (3.7, 6), (3.7, 3)])  # lines 0-3
add_polygon(sketch7, [(20.7, -7.8), (15, -9.7), (14.1, -6.9), (19.8, -5)])  # lines 4-7
sketch7.addConstraint([
    Sketcher.Constraint("Vertical", 0),
    Sketcher.Constraint("Horizontal", 1),
    Sketcher.Constraint("Vertical", 2),
    Sketcher.Constraint("Horizontal", 3),
    Sketcher.Constraint("Perpendicular", 4, 5),
    Sketcher.Constraint("Perpendicular", 5, 6),
    Sketcher.Constraint("Perpendicular", 6, 7),
    Sketcher.Constraint("DistanceX", 1, 1, 1, 2, 6.0),
    Sketcher.Constraint("DistanceY", 0, 1, 0, 2, 3.0),
    Sketcher.Constraint("Distance", 4, 6.0),
    Sketcher.Constraint("Distance", 5, 3.0),
    Sketcher.Constraint("DistanceX", 0, 2, -1, 1, 2.3),
    Sketcher.Constraint("DistanceY", -1, 1, 0, 2, 5.982),
    Sketcher.Constraint("DistanceY", 4, 2, 6, 2, 4.732998),
    Sketcher.Constraint("DistanceY", 4, 2, -1, 1, 9.727109),
    Sketcher.Constraint("DistanceX", -1, 1, 4, 2, 15.032785),
])
pocket2 = body2.newObject("PartDesign::Pocket", "Pocket001")
pocket2.Profile = sketch7
pocket2.Length = 7
pocket2.Reversed = True

# Sketch on XY plane
sketch8 = body2.newObject("Sketcher::SketchObject", "Sketch007")
sketch8.AttachmentSupport = (doc.getObject("XY_Plane001"), [""])
sketch8.MapMode = "FlatFace"
sketch8.AttachmentOffset = App.Placement(App.Vector(0, 0, -9.743), App.Rotation())
sketch8.addGeometry(Part.Circle(App.Vector(8.6, -3.6, 0), App.Vector(0, 0, 1), 1.7), False)
sketch8.addConstraint([
    Sketcher.Constraint("Diameter", 0, 3.45),
    Sketcher.Constraint("DistanceX", -1, 1, 0, 3, 8.6),
    Sketcher.Constraint("DistanceY", 0, 3, -1, 1, 3.639768),
])
pocket3 = body2.newObject("PartDesign::Pocket", "Pocket002")
pocket3.Profile = sketch8
pocket3.Type = "ThroughAll"
pocket3.Reversed = True

# Sketch on XY plane
sketch9 = body2.newObject("Sketcher::SketchObject", "Sketch008")
sketch9.AttachmentSupport = (doc.getObject("XY_Plane001"), [""])
sketch9.MapMode = "FlatFace"
sketch9.addGeometry([
    Part.Circle(App.Vector(0, -7, 0), App.Vector(0, 0, 1), 1.5),
    Part.Circle(App.Vector(0, -14, 0), App.Vector(0, 0, 1), 1.5),
    Part.Circle(App.Vector(7.1, -14, 0), App.Vector(0, 0, 1), 1.5),
], False)
sketch9.addConstraint([
    Sketcher.Constraint("Equal", 0, 1),
    Sketcher.Constraint("Equal", 1, 2),
    Sketcher.Constraint("PointOnObject", 0, 3, -2),
    Sketcher.Constraint("PointOnObject", 1, 3, -2),
    Sketcher.Constraint("Horizontal", 1, 3, 2, 3),
    Sketcher.Constraint("Diameter", 0, 3.0),
    Sketcher.Constraint("DistanceX", -1, 1, 2, 3, 7.08),
    Sketcher.Constraint("DistanceY", 0, 3, -1, 1, 7.018),
    Sketcher.Constraint("DistanceY", 1, 3, -1, 1, 14.036),
])
pocket4 = body2.newObject("PartDesign::Pocket", "Pocket003")
pocket4.Profile = sketch9
pocket4.Type = "ThroughAll"

# Sketch on XY plane
sketch10 = body2.newObject("Sketcher::SketchObject", "Sketch009")
sketch10.AttachmentSupport = (doc.getObject("XY_Plane001"), [""])
sketch10.MapMode = "FlatFace"
sketch10.AttachmentOffset = App.Placement(App.Vector(0, 0, -9.743), App.Rotation())
sketch10.addGeometry([
    Part.Circle(App.Vector(0, -14, 0), App.Vector(0, 0, 1), 2.8),
    Part.Circle(App.Vector(7.1, -14, 0), App.Vector(0, 0, 1), 2.8),
    Part.Circle(App.Vector(0, -7, 0), App.Vector(0, 0, 1), 2.8),
], False)
sketch10.addConstraint([
    Sketcher.Constraint("Equal", 0, 1),
    Sketcher.Constraint("Equal", 1, 2),
    Sketcher.Constraint("PointOnObject", 0, 3, -2),
    Sketcher.Constraint("PointOnObject", 2, 3, -2),
    Sketcher.Constraint("Horizontal", 0, 3, 1, 3),
    Sketcher.Constraint("Diameter", 0, 5.5),
    Sketcher.Constraint("DistanceX", -1, 1, 1, 3, 7.08),
    Sketcher.Constraint("DistanceY", 0, 3, -1, 1, 14.036),
    Sketcher.Constraint("DistanceY", 2, 3, -1, 1, 7.018),
])
pocket5 = body2.newObject("PartDesign::Pocket", "Pocket004")
pocket5.Profile = sketch10
pocket5.Length = 5
pocket5.Reversed = True
body3 = doc.addObject("PartDesign::Body", "Body002")

# Sketch on XY plane
sketch11 = body3.newObject("Sketcher::SketchObject", "Sketch010")
sketch11.AttachmentSupport = (doc.getObject("XY_Plane002"), [""])
sketch11.MapMode = "FlatFace"
sketch11.AttachmentOffset = App.Placement(App.Vector(0, 0, -9.743), App.Rotation())
sketch11.addGeometry(Part.Circle(App.Vector(8.6, -3.6, 0), App.Vector(0, 0, 1), 2), False)
sketch11.addConstraint([
    Sketcher.Constraint("Diameter", 0, 4.0),
    Sketcher.Constraint("DistanceX", -1, 1, 0, 3, 8.6),
    Sketcher.Constraint("DistanceY", 0, 3, -1, 1, 3.639768),
])
pad6 = body3.newObject("PartDesign::Pad", "Pad005")
pad6.Profile = sketch11
pad6.Length = 8
pad6.Reversed = True

doc.recompute()
